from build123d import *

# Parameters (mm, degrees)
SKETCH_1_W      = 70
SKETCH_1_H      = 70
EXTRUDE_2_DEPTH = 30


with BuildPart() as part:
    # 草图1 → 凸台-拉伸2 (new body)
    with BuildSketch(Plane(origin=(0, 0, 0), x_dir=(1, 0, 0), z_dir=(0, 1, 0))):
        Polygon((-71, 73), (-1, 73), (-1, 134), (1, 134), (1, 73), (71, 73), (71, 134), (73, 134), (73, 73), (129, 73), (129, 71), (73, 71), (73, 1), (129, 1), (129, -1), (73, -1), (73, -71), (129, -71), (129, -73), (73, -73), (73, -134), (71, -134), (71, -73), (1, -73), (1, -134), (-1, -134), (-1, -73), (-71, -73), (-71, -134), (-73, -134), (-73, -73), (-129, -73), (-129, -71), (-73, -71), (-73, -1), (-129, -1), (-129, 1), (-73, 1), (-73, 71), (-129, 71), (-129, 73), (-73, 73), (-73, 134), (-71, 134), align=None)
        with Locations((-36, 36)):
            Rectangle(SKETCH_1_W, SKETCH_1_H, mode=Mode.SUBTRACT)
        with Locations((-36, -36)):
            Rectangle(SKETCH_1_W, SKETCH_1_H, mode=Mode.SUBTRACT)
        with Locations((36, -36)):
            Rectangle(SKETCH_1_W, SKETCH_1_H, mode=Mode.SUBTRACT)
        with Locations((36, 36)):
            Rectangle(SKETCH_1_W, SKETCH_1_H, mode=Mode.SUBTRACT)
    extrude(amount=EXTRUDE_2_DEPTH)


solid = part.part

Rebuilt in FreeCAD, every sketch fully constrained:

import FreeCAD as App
import Part
import Sketcher
from FreeCAD import Vector
Q = App.Units.Quantity


def add_polygon(sketch, points):
    """Adds a closed chain of lines whose ends are joined by coincident constraints."""
    first, n = sketch.GeometryCount, len(points)
    for a, b in zip(points, points[1:] + points[:1]):
        sketch.addGeometry(Part.LineSegment(App.Vector(*a, 0), App.Vector(*b, 0)), False)
    for i in range(n):
        sketch.addConstraint(Sketcher.Constraint("Coincident", first + i, 2, first + (i + 1) % n, 1))

doc = App.newDocument("Part")
body = doc.addObject("PartDesign::Body", "Body")

sketch1 = body.newObject("Sketcher::SketchObject", "Sketch")
sketch1.AttachmentSupport = (doc.getObject("XZ_Plane"), [""])
sketch1.MapMode = "FlatFace"
add_polygon(sketch1, [(-1, -73), (-71, -73), (-71, -134), (-73, -134), (-73, -73), (-129, -73), (-129, -71), (-73, -71), (-73, -1), (-129, -1), (-129, 1), (-73, 1), (-73, 71), (-129, 71), (-129, 73), (-73, 73), (-73, 134), (-71, 134), (-71, 73), (-1, 73), (-1, 134), (1, 134), (1, 73), (71, 73), (71, 134), (73, 134), (73, 73), (129, 73), (129, 71), (73, 71), (73, 1), (129, 1), (129, -1), (73, -1), (73, -71), (129, -71), (129, -73), (73, -73), (73, -134), (71, -134), (71, -73), (1, -73), (1, -134), (-1, -134)])
add_polygon(sketch1, [(1, 71), (1, 1), (71, 1), (71, 71)])
add_polygon(sketch1, [(-71, 71), (-71, 1), (-1, 1), (-1, 71)])
add_polygon(sketch1, [(1, -1), (1, -71), (71, -71), (71, -1)])
add_polygon(sketch1, [(-71, -1), (-71, -71), (-1, -71), (-1, -1)])
sketch1.addConstraint(Sketcher.Constraint("Horizontal", 0))
sketch1.addConstraint(Sketcher.Constraint("Vertical", 1))
sketch1.addConstraint(Sketcher.Constraint("Horizontal", 2))
sketch1.addConstraint(Sketcher.Constraint("Vertical", 3))
sketch1.addConstraint(Sketcher.Constraint("Horizontal", 4))
sketch1.addConstraint(Sketcher.Constraint("Vertical", 5))
sketch1.addConstraint(Sketcher.Constraint("Horizontal", 6))
sketch1.addConstraint(Sketcher.Constraint("Vertical", 7))
sketch1.addConstraint(Sketcher.Constraint("Horizontal", 8))
sketch1.addConstraint(Sketcher.Constraint("Vertical", 9))
sketch1.addConstraint(Sketcher.Constraint("Horizontal", 10))
sketch1.addConstraint(Sketcher.Constraint("Vertical", 11))
sketch1.addConstraint(Sketcher.Constraint("Horizontal", 12))
sketch1.addConstraint(Sketcher.Constraint("Vertical", 13))
sketch1.addConstraint(Sketcher.Constraint("Horizontal", 14))
sketch1.addConstraint(Sketcher.Constraint("Vertical", 15))
sketch1.addConstraint(Sketcher.Constraint("Horizontal", 16))
sketch1.addConstraint(Sketcher.Constraint("Vertical", 17))
sketch1.addConstraint(Sketcher.Constraint("Horizontal", 18))
sketch1.addConstraint(Sketcher.Constraint("Vertical", 19))
sketch1.addConstraint(Sketcher.Constraint("Horizontal", 20))
sketch1.addConstraint(Sketcher.Constraint("Vertical", 21))
sketch1.addConstraint(Sketcher.Constraint("Horizontal", 22))
sketch1.addConstraint(Sketcher.Constraint("Vertical", 23))
sketch1.addConstraint(Sketcher.Constraint("Horizontal", 24))
sketch1.addConstraint(Sketcher.Constraint("Vertical", 25))
sketch1.addConstraint(Sketcher.Constraint("Horizontal", 26))
sketch1.addConstraint(Sketcher.Constraint("Vertical", 27))
sketch1.addConstraint(Sketcher.Constraint("Horizontal", 28))
sketch1.addConstraint(Sketcher.Constraint("Vertical", 29))
sketch1.addConstraint(Sketcher.Constraint("Horizontal", 30))
sketch1.addConstraint(Sketcher.Constraint("Vertical", 31))
sketch1.addConstraint(Sketcher.Constraint("Horizontal", 32))
sketch1.addConstraint(Sketcher.Constraint("Vertical", 33))
sketch1.addConstraint(Sketcher.Constraint("Horizontal", 34))
sketch1.addConstraint(Sketcher.Constraint("Vertical", 35))
sketch1.addConstraint(Sketcher.Constraint("Horizontal", 36))
sketch1.addConstraint(Sketcher.Constraint("Vertical", 37))
sketch1.addConstraint(Sketcher.Constraint("Horizontal", 38))
sketch1.addConstraint(Sketcher.Constraint("Vertical", 39))
sketch1.addConstraint(Sketcher.Constraint("Horizontal", 40))
sketch1.addConstraint(Sketcher.Constraint("Vertical", 41))
sketch1.addConstraint(Sketcher.Constraint("Horizontal", 42))
sketch1.addConstraint(Sketcher.Constraint("Vertical", 43))
sketch1.addConstraint(Sketcher.Constraint("Vertical", 44))
sketch1.addConstraint(Sketcher.Constraint("Horizontal", 45))
sketch1.addConstraint(Sketcher.Constraint("Vertical", 46))
sketch1.addConstraint(Sketcher.Constraint("Horizontal", 47))
sketch1.addConstraint(Sketcher.Constraint("Vertical", 48))
sketch1.addConstraint(Sketcher.Constraint("Horizontal", 49))
sketch1.addConstraint(Sketcher.Constraint("Vertical", 50))
sketch1.addConstraint(Sketcher.Constraint("Horizontal", 51))
sketch1.addConstraint(Sketcher.Constraint("Vertical", 52))
sketch1.addConstraint(Sketcher.Constraint("Horizontal", 53))
sketch1.addConstraint(Sketcher.Constraint("Vertical", 54))
sketch1.addConstraint(Sketcher.Constraint("Horizontal", 55))
sketch1.addConstraint(Sketcher.Constraint("Vertical", 56))
sketch1.addConstraint(Sketcher.Constraint("Horizontal", 57))
sketch1.addConstraint(Sketcher.Constraint("Vertical", 58))
sketch1.addConstraint(Sketcher.Constraint("Horizontal", 59))
sketch1.addConstraint(Sketcher.Constraint("Symmetric", 0, 2, 22, 2, -1, 1))
sketch1.addConstraint(Sketcher.Constraint("Symmetric", 2, 2, 24, 2, -1, 1))
sketch1.addConstraint(Sketcher.Constraint("Symmetric", 4, 2, 26, 2, -1, 1))
sketch1.addConstraint(Sketcher.Constraint("Symmetric", 6, 2, 28, 2, -1, 1))
sketch1.addConstraint(Sketcher.Constraint("Symmetric", 8, 2, 30, 2, -1, 1))
sketch1.addConstraint(Sketcher.Constraint("Symmetric", 10, 2, 32, 2, -1, 1))
sketch1.addConstraint(Sketcher.Constraint("Symmetric", 12, 2, 34, 2, -1, 1))
sketch1.addConstraint(Sketcher.Constraint("Symmetric", 14, 2, 36, 2, -1, 1))
sketch1.addConstraint(Sketcher.Constraint("Symmetric", 16, 2, 38, 2, -1, 1))
sketch1.addConstraint(Sketcher.Constraint("Symmetric", 18, 2, 40, 2, -1, 1))
sketch1.addConstraint(Sketcher.Constraint("Symmetric", 20, 2, 42, 2, -1, 1))
sketch1.addConstraint(Sketcher.Constraint("Symmetric", 50, 2, 52, 2, -1, 1))
sketch1.addConstraint(Sketcher.Constraint("Symmetric", 48, 2, 54, 2, -1, 1))
sketch1.addConstraint(Sketcher.Constraint("Symmetric", 46, 2, 56, 2, -1, 1))
sketch1.addConstraint(Sketcher.Constraint("Symmetric", 44, 2, 58, 2, -1, 1))
sketch1.addConstraint(Sketcher.Constraint("Symmetric", 18, 2, 21, 2, -2))
sketch1.addConstraint(Sketcher.Constraint("Symmetric", 16, 2, 23, 2, -2))
sketch1.addConstraint(Sketcher.Constraint("Symmetric", 14, 2, 25, 2, -2))
sketch1.addConstraint(Sketcher.Constraint("Symmetric", 12, 2, 27, 2, -2))
sketch1.addConstraint(Sketcher.Constraint("Symmetric", 10, 2, 29, 2, -2))
sketch1.addConstraint(Sketcher.Constraint("Symmetric", 45, 2, 48, 2, -2))
sketch1.addConstraint(Sketcher.Constraint("Symmetric", 47, 2, 50, 2, -2))
sketch1.addConstraint(Sketcher.Constraint("Horizontal", 0, 2, 3, 2))
sketch1.addConstraint(Sketcher.Constraint("Horizontal", 16, 2, 19, 2))
sketch1.addConstraint(Sketcher.Constraint("Horizontal", 30, 2, 44, 2))
sketch1.addConstraint(Sketcher.Constraint("Horizontal", 28, 2, 46, 2))
sketch1.addConstraint(Sketcher.Constraint("Vertical", 3, 2, 6, 2))
sketch1.addConstraint(Sketcher.Constraint("Vertical", 5, 2, 8, 2))
sketch1.addConstraint(Sketcher.Constraint("Vertical", 41, 2, 44, 2))
sketch1.addConstraint(Sketcher.Constraint("Vertical", 39, 2, 45, 2))
sketch1.addConstraint(Sketcher.Constraint("Equal", 16, 20))
sketch1.addConstraint(Sketcher.Constraint("Equal", 42, 5))
sketch1.addConstraint(Sketcher.Constraint("Equal", 59, 7))
sketch1.addConstraint(Sketcher.Constraint("Equal", 5, 9))
sketch1.addConstraint(Sketcher.Constraint("DistanceX", 0, 2, 0, 1, Q("70 mm")))
sketch1.addConstraint(Sketcher.Constraint("DistanceX", 2, 2, 2, 1, Q("2 mm")))
sketch1.addConstraint(Sketcher.Constraint("DistanceX", 4, 2, 4, 1, Q("56 mm")))
sketch1.addConstraint(Sketcher.Constraint("DistanceY", 1, 2, 1, 1, Q("61 mm")))
pad1 = body.newObject("PartDesign::Pad", "Pad")
pad1.Profile = sketch1
pad1.Length = 30
pad1.Reversed = True

doc.recompute()
